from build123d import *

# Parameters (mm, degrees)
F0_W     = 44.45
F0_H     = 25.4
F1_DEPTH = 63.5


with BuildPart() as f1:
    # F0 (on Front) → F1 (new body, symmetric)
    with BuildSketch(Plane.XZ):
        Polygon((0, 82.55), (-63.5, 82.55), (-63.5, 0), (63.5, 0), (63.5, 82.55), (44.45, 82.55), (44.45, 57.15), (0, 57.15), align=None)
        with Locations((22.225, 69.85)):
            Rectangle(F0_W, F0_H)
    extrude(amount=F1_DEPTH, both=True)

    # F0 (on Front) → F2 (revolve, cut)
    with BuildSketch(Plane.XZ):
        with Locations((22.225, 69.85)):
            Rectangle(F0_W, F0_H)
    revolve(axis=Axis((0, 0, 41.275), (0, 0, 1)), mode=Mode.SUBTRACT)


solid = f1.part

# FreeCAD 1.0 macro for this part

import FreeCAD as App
import Part
import Sketcher
from FreeCAD import Vector
Q = App.Units.Quantity

doc = App.newDocument("Part")
params = doc.addObject("Spreadsheet::Sheet", "Params")
for row, (alias, value) in enumerate([
    ("sketch1_width", "5 in"),
    ("sketch1_height", "3.25 in"),
    ("pad1_length", "5 in"),
    ("sketch2_height", "1 in"),
    ("sketch2_width", "1.75 in"),
    ("groove_angle", "360 deg"),
], start=1):
    params.set(f"A{row}", alias)
    params.set(f"B{row}", "=" + value)
    params.setAlias(f"B{row}", alias)

body = doc.addObject("PartDesign::Body", "Body")

sketch1 = body.newObject("Sketcher::SketchObject", "Sketch")
sketch1.AttachmentSupport = (doc.getObject("XZ_Plane"), [""])
sketch1.MapMode = "FlatFace"
sketch1.addGeometry([
    Part.LineSegment(Vector(-64, 83, 0), Vector(-64, 0, 0)),
    Part.LineSegment(Vector(-64, 0, 0), Vector(64, 0, 0)),
    Part.LineSegment(Vector(64, 0, 0), Vector(64, 83, 0)),
    Part.LineSegment(Vector(64, 83, 0), Vector(-64, 83, 0)),
], False)
sketch1.addConstraint([
    Sketcher.Constraint("Coincident", 0, 2, 1, 1),
    Sketcher.Constraint("Coincident", 1, 2, 2, 1),
    Sketcher.Constraint("Coincident", 2, 2, 3, 1),
    Sketcher.Constraint("Coincident", 3, 2, 0, 1),
    Sketcher.Constraint("Vertical", 0),
    Sketcher.Constraint("Horizontal", 1),
    Sketcher.Constraint("Vertical", 2),
    Sketcher.Constraint("Horizontal", 3),
    Sketcher.Constraint("Symmetric", 0, 2, 1, 2, -1, 1),
    Sketcher.Constraint("DistanceX", 1, 1, 1, 2, Q("5 in")),
    Sketcher.Constraint("DistanceY", 0, 2, 0, 1, Q("3.25 in")),
])
sketch1.setExpression("Constraints[9]", "Params.sketch1_width")
sketch1.setExpression("Constraints[10]", "Params.sketch1_height")
pad1 = body.newObject("PartDesign::Pad", "Pad")
pad1.Profile = sketch1
pad1.setExpression("Length", "Params.pad1_length")
pad1.Midplane = True

sketch2 = body.newObject("Sketcher::SketchObject", "Sketch001")
sketch2.AttachmentSupport = (doc.getObject("XZ_Plane"), [""])
sketch2.MapMode = "FlatFace"
sketch2.addGeometry([
    Part.LineSegment(Vector(0, 83, 0), Vector(0, 57, 0)),
    Part.LineSegment(Vector(0, 57, 0), Vector(44, 57, 0)),
    Part.LineSegment(Vector(44, 57, 0), Vector(44, 83, 0)),
    Part.LineSegment(Vector(44, 83, 0), Vector(0, 83, 0)),
], False)
sketch2.addConstraint([
    Sketcher.Constraint("Coincident", 0, 2, 1, 1),
    Sketcher.Constraint("Coincident", 1, 2, 2, 1),
    Sketcher.Constraint("Coincident", 2, 2, 3, 1),
    Sketcher.Constraint("Coincident", 3, 2, 0, 1),
    Sketcher.Constraint("Vertical", 0),
    Sketcher.Constraint("Horizontal", 1),
    Sketcher.Constraint("Vertical", 2),
    Sketcher.Constraint("Horizontal", 3),
    Sketcher.Constraint("PointOnObject", 0, 2, -2),
    Sketcher.Constraint("DistanceY", 0, 2, 0, 1, Q("1 in")),
    Sketcher.Constraint("DistanceX", 1, 1, 1, 2, Q("1.75 in")),
    Sketcher.Constraint("DistanceY", -1, 1, 0, 2, Q("2.25 in")),
])
sketch2.setExpression("Constraints[9]", "Params.sketch2_height")
sketch2.setExpression("Constraints[10]", "Params.sketch2_width")
groove = body.newObject("PartDesign::Groove", "Groove")
groove.Profile = sketch2
groove.ReferenceAxis = (sketch2, ["V_Axis"])
groove.setExpression("Angle", "Params.groove_angle")

doc.recompute()
